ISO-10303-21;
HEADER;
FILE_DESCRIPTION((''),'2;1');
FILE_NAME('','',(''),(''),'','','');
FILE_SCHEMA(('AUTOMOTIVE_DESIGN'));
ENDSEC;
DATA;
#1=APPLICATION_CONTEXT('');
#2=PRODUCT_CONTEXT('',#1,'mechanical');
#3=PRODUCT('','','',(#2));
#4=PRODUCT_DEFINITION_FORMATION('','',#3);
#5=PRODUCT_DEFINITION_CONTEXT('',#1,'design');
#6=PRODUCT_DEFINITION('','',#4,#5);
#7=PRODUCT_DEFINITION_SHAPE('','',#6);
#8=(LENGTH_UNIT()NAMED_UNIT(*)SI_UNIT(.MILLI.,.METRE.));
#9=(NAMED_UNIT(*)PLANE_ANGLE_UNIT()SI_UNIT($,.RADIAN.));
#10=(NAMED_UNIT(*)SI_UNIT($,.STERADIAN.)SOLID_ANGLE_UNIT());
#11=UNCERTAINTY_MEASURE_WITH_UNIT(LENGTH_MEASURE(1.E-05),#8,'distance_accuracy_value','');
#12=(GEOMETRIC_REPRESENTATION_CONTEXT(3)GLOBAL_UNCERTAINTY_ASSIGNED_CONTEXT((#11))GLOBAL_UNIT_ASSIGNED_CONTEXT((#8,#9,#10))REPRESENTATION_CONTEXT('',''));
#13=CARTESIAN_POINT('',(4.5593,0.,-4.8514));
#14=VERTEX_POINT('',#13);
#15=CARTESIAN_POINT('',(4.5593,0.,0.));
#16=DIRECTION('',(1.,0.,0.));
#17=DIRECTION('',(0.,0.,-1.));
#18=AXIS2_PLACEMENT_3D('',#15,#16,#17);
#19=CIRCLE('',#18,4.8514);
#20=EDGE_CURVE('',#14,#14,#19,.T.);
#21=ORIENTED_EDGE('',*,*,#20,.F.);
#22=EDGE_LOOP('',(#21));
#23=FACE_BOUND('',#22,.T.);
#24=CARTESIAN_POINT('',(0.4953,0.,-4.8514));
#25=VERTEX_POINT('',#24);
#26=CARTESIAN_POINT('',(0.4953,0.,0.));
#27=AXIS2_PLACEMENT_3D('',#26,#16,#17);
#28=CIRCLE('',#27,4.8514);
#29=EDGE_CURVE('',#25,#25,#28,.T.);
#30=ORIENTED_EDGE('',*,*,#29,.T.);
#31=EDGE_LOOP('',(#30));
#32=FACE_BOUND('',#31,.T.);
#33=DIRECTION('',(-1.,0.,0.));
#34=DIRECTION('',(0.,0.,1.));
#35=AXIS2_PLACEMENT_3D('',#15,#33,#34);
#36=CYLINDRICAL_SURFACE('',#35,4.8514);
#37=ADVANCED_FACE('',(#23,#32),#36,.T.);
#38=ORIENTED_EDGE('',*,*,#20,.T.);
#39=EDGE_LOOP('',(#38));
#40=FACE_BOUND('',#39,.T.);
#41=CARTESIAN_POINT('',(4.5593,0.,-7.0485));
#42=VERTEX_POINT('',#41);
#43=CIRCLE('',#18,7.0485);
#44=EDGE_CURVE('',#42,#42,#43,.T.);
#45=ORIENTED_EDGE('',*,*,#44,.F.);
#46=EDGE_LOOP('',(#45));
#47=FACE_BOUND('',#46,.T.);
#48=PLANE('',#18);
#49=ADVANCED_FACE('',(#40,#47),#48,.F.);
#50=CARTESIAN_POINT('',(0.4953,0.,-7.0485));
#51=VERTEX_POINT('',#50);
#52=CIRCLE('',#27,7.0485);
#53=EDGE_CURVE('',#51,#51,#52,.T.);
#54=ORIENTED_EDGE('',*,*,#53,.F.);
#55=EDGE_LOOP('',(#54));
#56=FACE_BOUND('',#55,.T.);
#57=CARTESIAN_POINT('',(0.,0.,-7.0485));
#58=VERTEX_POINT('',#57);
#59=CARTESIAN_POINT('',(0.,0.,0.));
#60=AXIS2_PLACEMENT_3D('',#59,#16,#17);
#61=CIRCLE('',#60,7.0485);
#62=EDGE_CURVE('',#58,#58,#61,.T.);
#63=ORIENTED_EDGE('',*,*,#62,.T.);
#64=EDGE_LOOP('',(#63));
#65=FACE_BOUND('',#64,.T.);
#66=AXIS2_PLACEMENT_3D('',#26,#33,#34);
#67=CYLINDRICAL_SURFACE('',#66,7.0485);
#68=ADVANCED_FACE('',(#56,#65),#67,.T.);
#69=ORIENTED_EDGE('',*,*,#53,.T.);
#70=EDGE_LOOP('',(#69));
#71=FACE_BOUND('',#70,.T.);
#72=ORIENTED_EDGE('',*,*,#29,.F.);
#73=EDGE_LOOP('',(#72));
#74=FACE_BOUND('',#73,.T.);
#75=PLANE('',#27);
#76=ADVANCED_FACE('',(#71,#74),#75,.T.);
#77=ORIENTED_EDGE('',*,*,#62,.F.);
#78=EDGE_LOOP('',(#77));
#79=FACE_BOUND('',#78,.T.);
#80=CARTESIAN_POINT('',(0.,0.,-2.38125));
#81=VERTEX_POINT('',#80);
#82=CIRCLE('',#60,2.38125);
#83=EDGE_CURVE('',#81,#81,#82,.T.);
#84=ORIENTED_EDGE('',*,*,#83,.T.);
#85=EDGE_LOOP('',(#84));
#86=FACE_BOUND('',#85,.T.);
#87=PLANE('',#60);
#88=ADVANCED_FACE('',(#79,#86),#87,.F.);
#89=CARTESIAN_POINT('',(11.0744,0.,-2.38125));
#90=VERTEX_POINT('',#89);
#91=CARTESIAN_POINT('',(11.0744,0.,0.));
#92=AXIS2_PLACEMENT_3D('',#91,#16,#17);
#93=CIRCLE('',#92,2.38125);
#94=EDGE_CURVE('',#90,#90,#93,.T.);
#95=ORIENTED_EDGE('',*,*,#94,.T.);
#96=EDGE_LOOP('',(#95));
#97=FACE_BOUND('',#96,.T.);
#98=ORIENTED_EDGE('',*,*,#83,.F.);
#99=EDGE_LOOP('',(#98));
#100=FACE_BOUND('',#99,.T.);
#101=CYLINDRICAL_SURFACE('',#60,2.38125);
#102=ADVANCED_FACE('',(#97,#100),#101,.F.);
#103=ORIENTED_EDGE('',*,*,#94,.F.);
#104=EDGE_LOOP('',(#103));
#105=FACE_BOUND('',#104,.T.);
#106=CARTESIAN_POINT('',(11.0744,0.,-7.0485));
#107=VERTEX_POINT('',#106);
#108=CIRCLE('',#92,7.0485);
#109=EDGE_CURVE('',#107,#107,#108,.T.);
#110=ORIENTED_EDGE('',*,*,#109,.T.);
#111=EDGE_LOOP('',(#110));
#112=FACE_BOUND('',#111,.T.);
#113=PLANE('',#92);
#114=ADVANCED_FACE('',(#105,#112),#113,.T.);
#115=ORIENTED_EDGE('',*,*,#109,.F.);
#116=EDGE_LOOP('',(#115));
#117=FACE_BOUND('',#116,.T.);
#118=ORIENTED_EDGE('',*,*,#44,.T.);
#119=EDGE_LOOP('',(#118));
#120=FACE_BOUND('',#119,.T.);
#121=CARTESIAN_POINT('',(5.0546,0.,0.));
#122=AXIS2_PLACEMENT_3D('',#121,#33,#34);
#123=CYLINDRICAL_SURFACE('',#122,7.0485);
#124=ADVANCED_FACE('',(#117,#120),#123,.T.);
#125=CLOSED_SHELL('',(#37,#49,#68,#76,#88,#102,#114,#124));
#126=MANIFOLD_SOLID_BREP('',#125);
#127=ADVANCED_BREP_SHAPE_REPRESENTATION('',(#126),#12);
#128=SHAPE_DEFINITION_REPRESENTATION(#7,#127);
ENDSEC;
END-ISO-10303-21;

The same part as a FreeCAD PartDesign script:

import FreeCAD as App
import Part
import Sketcher

V = App.Vector
Q = App.Units.Quantity

doc = App.newDocument("Part")
body = doc.addObject("PartDesign::Body", "Body")

# Sketch on YZ plane
sketch1 = doc.addObject("Sketcher::SketchObject", "Sketch")
body.addObject(sketch1)
sketch1.AttachmentSupport = (doc.YZ_Plane, [""])
sketch1.MapMode = "FlatFace"
sketch1.addGeometry(Part.Circle(V(0, 0, 0), V(0, 0, 1), 7), False)
sketch1.addConstraint(Sketcher.Constraint("Coincident", 0, 3, -1, 1))
sketch1.addConstraint(Sketcher.Constraint("Diameter", 0, Q("0.555 in")))
pad1 = doc.addObject("PartDesign::Pad", "Pad")
body.addObject(pad1)
pad1.Profile = sketch1
pad1.Length = Q("0.0195 in")

# Sketch on YZ plane
sketch2 = doc.addObject("Sketcher::SketchObject", "Sketch001")
body.addObject(sketch2)
sketch2.AttachmentSupport = (doc.YZ_Plane, [""])
sketch2.MapMode = "FlatFace"
sketch2.AttachmentOffset = App.Placement(V(0, 0, 0.0195 * 25.4), App.Rotation())
sketch2.addGeometry(Part.Circle(V(0, 0, 0), V(0, 0, 1), 4.9), False)
sketch2.addConstraint(Sketcher.Constraint("Coincident", 0, 3, -1, 1))
sketch2.addConstraint(Sketcher.Constraint("Diameter", 0, Q("0.382 in")))
pad2 = doc.addObject("PartDesign::Pad", "Pad001")
body.addObject(pad2)
pad2.Profile = sketch2
pad2.Length = Q("0.16 in")

# Sketch on YZ plane
sketch3 = doc.addObject("Sketcher::SketchObject", "Sketch002")
body.addObject(sketch3)
sketch3.AttachmentSupport = (doc.YZ_Plane, [""])
sketch3.MapMode = "FlatFace"
sketch3.AttachmentOffset = App.Placement(V(0, 0, 0.1795 * 25.4), App.Rotation())
sketch3.addGeometry(Part.Circle(V(0, 0, 0), V(0, 0, 1), 7), False)
sketch3.addConstraint(Sketcher.Constraint("Coincident", 0, 3, -1, 1))
sketch3.addConstraint(Sketcher.Constraint("Diameter", 0, Q("0.555 in")))
pad3 = doc.addObject("PartDesign::Pad", "Pad002")
body.addObject(pad3)
pad3.Profile = sketch3
pad3.Length = Q("0.0195 in")

# Sketch on YZ plane
sketch4 = doc.addObject("Sketcher::SketchObject", "Sketch003")
body.addObject(sketch4)
sketch4.AttachmentSupport = (doc.YZ_Plane, [""])
sketch4.MapMode = "FlatFace"
sketch4.AttachmentOffset = App.Placement(V(0, 0, 0.199 * 25.4), App.Rotation())
sketch4.addGeometry(Part.Circle(V(0, 0, 0), V(0, 0, 1), 7), False)
sketch4.addConstraint(Sketcher.Constraint("Coincident", 0, 3, -1, 1))
sketch4.addConstraint(Sketcher.Constraint("Diameter", 0, Q("0.555 in")))
pad4 = doc.addObject("PartDesign::Pad", "Pad003")
body.addObject(pad4)
pad4.Profile = sketch4
pad4.Length = Q("0.237 in")

# Sketch on YZ plane
sketch5 = doc.addObject("Sketcher::SketchObject", "Sketch004")
body.addObject(sketch5)
sketch5.AttachmentSupport = (doc.YZ_Plane, [""])
sketch5.MapMode = "FlatFace"
sketch5.AttachmentOffset = App.Placement(V(0, 0, 0.436 * 25.4), App.Rotation())
sketch5.addGeometry(Part.Circle(V(0, 0, 0), V(0, 0, 1), 2.4), False)
sketch5.addConstraint(Sketcher.Constraint("Coincident", 0, 3, -1, 1))
sketch5.addConstraint(Sketcher.Constraint("Diameter", 0, Q("0.1875 in")))
pocket1 = doc.addObject("PartDesign::Pocket", "Pocket")
body.addObject(pocket1)
pocket1.Profile = sketch5
pocket1.Type = "ThroughAll"

doc.recompute()
